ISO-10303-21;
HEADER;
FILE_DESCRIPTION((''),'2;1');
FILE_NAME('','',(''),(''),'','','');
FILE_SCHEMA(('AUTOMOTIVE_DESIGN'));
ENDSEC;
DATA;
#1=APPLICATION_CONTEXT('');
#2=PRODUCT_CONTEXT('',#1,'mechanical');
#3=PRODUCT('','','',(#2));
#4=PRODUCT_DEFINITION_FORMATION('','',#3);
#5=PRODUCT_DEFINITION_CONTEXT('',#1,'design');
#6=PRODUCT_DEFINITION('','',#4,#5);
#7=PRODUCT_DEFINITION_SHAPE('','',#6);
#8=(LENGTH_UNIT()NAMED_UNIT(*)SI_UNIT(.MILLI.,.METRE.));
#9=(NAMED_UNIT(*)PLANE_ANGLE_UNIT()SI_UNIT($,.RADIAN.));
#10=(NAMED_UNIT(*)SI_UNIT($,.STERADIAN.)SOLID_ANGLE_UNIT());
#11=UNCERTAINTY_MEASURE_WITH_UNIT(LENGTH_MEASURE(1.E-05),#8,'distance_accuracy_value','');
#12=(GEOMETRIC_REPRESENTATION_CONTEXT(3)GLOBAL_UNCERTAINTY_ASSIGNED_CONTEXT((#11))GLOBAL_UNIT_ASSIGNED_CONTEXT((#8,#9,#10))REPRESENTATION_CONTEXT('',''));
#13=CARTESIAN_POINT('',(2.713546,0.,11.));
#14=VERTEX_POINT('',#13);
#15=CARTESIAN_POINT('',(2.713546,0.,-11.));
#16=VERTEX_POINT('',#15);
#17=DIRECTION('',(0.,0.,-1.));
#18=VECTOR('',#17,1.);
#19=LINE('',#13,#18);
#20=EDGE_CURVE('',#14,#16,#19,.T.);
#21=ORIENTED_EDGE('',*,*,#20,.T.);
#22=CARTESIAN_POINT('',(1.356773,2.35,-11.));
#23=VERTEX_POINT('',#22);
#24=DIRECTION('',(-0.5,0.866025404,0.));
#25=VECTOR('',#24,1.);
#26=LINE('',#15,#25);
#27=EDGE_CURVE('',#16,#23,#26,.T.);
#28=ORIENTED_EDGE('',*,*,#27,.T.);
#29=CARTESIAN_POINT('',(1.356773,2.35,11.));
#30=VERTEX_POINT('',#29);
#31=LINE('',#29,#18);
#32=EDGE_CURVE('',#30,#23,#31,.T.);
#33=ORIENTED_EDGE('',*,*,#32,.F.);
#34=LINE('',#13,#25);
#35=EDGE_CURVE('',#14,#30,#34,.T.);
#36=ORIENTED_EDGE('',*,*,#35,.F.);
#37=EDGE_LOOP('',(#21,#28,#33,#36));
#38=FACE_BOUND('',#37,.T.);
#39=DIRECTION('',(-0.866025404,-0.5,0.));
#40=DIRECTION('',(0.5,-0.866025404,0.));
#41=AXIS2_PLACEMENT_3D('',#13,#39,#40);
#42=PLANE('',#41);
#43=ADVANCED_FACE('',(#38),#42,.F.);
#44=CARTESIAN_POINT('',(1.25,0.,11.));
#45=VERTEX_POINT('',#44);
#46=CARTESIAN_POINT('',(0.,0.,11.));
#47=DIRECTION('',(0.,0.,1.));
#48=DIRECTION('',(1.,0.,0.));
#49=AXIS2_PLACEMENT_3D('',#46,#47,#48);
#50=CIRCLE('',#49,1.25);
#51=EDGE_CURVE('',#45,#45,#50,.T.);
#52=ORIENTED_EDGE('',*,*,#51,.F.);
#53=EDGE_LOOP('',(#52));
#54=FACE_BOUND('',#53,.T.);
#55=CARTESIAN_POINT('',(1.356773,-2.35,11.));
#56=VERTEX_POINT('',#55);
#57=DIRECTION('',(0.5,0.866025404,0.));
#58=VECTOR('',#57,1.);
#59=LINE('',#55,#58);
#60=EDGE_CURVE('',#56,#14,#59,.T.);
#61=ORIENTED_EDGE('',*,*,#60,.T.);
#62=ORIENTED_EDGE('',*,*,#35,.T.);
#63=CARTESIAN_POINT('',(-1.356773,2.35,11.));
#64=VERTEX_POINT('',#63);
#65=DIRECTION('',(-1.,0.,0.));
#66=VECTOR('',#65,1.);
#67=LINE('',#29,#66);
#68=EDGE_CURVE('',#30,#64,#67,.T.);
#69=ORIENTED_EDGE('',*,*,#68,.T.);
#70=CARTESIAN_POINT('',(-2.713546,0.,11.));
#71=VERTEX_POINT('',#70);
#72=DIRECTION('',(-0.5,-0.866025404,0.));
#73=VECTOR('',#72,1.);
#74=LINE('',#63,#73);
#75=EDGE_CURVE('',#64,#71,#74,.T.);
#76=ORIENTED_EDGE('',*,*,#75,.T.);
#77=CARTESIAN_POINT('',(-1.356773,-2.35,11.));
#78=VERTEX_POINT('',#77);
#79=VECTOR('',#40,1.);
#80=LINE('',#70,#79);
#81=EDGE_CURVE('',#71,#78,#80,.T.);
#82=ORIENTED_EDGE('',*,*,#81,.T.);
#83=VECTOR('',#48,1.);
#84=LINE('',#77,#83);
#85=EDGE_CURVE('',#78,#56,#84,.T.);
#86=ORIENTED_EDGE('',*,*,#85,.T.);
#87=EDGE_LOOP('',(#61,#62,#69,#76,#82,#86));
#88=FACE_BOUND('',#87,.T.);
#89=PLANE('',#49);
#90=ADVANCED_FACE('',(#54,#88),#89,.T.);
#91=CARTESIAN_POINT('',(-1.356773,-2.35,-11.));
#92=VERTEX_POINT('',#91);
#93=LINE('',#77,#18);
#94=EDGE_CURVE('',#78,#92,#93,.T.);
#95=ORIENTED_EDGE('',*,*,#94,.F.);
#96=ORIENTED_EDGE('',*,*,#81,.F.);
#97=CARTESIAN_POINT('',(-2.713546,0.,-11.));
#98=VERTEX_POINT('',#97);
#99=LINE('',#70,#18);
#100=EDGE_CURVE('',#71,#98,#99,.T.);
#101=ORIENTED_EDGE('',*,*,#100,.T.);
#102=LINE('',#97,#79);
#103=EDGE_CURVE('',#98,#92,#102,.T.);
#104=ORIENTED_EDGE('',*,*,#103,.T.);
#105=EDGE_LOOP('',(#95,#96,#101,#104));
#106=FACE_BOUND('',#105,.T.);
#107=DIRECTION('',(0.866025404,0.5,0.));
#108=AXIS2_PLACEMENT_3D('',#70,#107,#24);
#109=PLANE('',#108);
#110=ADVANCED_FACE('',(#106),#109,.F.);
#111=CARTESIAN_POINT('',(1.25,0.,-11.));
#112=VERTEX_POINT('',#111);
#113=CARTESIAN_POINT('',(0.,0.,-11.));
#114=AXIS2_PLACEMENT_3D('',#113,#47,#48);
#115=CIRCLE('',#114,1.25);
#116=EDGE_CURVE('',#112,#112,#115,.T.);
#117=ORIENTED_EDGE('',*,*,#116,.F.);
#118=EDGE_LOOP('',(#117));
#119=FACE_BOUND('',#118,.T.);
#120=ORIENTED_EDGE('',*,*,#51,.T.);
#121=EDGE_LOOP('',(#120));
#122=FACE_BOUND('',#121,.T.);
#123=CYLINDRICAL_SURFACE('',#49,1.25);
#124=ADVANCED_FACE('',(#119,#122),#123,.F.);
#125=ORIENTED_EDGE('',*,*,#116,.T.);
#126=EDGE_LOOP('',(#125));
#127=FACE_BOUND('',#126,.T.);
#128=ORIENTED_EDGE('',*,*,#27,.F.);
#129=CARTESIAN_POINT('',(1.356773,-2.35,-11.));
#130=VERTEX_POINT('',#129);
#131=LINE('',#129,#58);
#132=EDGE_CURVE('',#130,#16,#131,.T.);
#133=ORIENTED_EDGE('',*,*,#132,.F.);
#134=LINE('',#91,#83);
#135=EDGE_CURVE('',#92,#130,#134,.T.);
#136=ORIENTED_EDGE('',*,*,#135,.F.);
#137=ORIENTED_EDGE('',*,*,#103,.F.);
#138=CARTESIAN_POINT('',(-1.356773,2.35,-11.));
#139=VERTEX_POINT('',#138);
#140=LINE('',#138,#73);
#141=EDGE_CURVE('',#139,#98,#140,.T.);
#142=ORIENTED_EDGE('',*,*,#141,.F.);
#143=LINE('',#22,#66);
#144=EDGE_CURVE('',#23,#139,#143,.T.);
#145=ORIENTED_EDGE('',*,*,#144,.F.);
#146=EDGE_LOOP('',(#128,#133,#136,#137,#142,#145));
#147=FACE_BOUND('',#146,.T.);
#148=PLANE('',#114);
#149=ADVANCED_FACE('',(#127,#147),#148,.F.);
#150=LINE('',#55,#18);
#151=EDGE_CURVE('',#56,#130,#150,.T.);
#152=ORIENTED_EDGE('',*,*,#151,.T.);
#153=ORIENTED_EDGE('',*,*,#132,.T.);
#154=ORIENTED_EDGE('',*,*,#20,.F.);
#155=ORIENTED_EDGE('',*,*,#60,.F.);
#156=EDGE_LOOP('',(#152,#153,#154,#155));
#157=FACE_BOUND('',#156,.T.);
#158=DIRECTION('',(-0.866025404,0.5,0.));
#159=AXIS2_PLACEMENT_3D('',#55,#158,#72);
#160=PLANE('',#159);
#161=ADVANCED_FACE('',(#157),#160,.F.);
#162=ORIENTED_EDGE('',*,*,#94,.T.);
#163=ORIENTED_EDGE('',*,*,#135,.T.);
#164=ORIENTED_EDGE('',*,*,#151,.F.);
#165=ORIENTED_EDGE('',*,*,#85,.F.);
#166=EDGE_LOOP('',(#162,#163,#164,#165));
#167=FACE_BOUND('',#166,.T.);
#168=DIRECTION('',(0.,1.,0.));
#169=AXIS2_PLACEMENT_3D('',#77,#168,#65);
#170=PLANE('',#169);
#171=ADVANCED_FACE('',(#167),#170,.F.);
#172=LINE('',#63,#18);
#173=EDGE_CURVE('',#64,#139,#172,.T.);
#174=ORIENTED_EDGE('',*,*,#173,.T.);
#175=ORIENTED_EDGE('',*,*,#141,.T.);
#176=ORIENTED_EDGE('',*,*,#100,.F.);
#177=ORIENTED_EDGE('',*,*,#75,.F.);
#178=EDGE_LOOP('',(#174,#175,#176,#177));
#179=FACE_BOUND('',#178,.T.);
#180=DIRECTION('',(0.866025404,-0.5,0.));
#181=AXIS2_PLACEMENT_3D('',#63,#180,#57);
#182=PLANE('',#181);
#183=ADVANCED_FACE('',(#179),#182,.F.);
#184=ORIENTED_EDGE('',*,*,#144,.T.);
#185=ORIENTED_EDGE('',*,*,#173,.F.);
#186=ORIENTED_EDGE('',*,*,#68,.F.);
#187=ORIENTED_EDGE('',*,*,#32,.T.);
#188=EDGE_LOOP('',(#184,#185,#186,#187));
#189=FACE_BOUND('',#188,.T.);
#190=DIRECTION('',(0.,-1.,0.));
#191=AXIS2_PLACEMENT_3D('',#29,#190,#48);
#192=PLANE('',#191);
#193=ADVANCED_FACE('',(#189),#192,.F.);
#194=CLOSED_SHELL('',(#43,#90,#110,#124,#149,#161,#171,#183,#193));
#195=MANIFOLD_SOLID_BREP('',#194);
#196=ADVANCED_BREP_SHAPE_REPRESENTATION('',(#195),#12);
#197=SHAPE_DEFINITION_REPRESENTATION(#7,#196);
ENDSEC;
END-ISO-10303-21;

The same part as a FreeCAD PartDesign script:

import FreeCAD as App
import Part
import Sketcher

V = App.Vector
Q = App.Units.Quantity


def add_polygon(sketch, points):
    """Adds a closed chain of lines whose ends are joined by coincident constraints."""
    first, n = sketch.GeometryCount, len(points)
    for a, b in zip(points, points[1:] + points[:1]):
        sketch.addGeometry(Part.LineSegment(App.Vector(*a, 0), App.Vector(*b, 0)), False)
    for i in range(n):
        sketch.addConstraint(Sketcher.Constraint("Coincident", first + i, 2, first + (i + 1) % n, 1))

doc = App.newDocument("Part")
body = doc.addObject("PartDesign::Body", "Body")

sketch1 = body.newObject("Sketcher::SketchObject", "Sketch")
sketch1.AttachmentSupport = (doc.getObject("XY_Plane"), [""])
sketch1.MapMode = "FlatFace"
add_polygon(sketch1, [(1.4, 2.4), (-1.4, 2.4), (-2.7, 0), (-1.4, -2.4), (1.4, -2.4), (2.7, 0)])
sketch1.addConstraint(Sketcher.Constraint("Horizontal", 0))
sketch1.addConstraint(Sketcher.Constraint("Horizontal", 3))
sketch1.addConstraint(Sketcher.Constraint("Symmetric", 0, 2, 3, 2, -1, 1))
sketch1.addConstraint(Sketcher.Constraint("Symmetric", 1, 2, 4, 2, -1, 1))
sketch1.addConstraint(Sketcher.Constraint("PointOnObject", 1, 2, -1))
sketch1.addConstraint(Sketcher.Constraint("Parallel", 2, 5))
sketch1.addConstraint(Sketcher.Constraint("Vertical", 0, 2, 2, 2))
sketch1.addConstraint(Sketcher.Constraint("Angle", 1, Q("-120 deg")))
sketch1.addConstraint(Sketcher.Constraint("DistanceY", 2, 2, 0, 2, Q("4.7 mm")))
sketch1.addConstraint(Sketcher.Constraint("DistanceX", 0, 2, 0, 1, Q("2.713546 mm")))
pad1 = body.newObject("PartDesign::Pad", "Pad")
pad1.Profile = sketch1
pad1.Length = 22
pad1.Midplane = True

sketch2 = body.newObject("Sketcher::SketchObject", "Sketch001")
sketch2.AttachmentSupport = (doc.getObject("XY_Plane"), [""])
sketch2.MapMode = "FlatFace"
sketch2.AttachmentOffset = App.Placement(V(0, 0, 11), App.Rotation())
sketch2.addGeometry(Part.Circle(V(0, 0, 0), V(0, 0, 1), 1.2), False)
sketch2.addConstraint(Sketcher.Constraint("Coincident", 0, 3, -1, 1))
sketch2.addConstraint(Sketcher.Constraint("Diameter", 0, Q("2.5 mm")))
doc.recompute()
hole = body.newObject("PartDesign::Hole", "Hole")
hole.Profile = sketch2
hole.ThreadType = "None"
hole.Diameter = 2.5
hole.DepthType = "ThroughAll"

doc.recompute()
